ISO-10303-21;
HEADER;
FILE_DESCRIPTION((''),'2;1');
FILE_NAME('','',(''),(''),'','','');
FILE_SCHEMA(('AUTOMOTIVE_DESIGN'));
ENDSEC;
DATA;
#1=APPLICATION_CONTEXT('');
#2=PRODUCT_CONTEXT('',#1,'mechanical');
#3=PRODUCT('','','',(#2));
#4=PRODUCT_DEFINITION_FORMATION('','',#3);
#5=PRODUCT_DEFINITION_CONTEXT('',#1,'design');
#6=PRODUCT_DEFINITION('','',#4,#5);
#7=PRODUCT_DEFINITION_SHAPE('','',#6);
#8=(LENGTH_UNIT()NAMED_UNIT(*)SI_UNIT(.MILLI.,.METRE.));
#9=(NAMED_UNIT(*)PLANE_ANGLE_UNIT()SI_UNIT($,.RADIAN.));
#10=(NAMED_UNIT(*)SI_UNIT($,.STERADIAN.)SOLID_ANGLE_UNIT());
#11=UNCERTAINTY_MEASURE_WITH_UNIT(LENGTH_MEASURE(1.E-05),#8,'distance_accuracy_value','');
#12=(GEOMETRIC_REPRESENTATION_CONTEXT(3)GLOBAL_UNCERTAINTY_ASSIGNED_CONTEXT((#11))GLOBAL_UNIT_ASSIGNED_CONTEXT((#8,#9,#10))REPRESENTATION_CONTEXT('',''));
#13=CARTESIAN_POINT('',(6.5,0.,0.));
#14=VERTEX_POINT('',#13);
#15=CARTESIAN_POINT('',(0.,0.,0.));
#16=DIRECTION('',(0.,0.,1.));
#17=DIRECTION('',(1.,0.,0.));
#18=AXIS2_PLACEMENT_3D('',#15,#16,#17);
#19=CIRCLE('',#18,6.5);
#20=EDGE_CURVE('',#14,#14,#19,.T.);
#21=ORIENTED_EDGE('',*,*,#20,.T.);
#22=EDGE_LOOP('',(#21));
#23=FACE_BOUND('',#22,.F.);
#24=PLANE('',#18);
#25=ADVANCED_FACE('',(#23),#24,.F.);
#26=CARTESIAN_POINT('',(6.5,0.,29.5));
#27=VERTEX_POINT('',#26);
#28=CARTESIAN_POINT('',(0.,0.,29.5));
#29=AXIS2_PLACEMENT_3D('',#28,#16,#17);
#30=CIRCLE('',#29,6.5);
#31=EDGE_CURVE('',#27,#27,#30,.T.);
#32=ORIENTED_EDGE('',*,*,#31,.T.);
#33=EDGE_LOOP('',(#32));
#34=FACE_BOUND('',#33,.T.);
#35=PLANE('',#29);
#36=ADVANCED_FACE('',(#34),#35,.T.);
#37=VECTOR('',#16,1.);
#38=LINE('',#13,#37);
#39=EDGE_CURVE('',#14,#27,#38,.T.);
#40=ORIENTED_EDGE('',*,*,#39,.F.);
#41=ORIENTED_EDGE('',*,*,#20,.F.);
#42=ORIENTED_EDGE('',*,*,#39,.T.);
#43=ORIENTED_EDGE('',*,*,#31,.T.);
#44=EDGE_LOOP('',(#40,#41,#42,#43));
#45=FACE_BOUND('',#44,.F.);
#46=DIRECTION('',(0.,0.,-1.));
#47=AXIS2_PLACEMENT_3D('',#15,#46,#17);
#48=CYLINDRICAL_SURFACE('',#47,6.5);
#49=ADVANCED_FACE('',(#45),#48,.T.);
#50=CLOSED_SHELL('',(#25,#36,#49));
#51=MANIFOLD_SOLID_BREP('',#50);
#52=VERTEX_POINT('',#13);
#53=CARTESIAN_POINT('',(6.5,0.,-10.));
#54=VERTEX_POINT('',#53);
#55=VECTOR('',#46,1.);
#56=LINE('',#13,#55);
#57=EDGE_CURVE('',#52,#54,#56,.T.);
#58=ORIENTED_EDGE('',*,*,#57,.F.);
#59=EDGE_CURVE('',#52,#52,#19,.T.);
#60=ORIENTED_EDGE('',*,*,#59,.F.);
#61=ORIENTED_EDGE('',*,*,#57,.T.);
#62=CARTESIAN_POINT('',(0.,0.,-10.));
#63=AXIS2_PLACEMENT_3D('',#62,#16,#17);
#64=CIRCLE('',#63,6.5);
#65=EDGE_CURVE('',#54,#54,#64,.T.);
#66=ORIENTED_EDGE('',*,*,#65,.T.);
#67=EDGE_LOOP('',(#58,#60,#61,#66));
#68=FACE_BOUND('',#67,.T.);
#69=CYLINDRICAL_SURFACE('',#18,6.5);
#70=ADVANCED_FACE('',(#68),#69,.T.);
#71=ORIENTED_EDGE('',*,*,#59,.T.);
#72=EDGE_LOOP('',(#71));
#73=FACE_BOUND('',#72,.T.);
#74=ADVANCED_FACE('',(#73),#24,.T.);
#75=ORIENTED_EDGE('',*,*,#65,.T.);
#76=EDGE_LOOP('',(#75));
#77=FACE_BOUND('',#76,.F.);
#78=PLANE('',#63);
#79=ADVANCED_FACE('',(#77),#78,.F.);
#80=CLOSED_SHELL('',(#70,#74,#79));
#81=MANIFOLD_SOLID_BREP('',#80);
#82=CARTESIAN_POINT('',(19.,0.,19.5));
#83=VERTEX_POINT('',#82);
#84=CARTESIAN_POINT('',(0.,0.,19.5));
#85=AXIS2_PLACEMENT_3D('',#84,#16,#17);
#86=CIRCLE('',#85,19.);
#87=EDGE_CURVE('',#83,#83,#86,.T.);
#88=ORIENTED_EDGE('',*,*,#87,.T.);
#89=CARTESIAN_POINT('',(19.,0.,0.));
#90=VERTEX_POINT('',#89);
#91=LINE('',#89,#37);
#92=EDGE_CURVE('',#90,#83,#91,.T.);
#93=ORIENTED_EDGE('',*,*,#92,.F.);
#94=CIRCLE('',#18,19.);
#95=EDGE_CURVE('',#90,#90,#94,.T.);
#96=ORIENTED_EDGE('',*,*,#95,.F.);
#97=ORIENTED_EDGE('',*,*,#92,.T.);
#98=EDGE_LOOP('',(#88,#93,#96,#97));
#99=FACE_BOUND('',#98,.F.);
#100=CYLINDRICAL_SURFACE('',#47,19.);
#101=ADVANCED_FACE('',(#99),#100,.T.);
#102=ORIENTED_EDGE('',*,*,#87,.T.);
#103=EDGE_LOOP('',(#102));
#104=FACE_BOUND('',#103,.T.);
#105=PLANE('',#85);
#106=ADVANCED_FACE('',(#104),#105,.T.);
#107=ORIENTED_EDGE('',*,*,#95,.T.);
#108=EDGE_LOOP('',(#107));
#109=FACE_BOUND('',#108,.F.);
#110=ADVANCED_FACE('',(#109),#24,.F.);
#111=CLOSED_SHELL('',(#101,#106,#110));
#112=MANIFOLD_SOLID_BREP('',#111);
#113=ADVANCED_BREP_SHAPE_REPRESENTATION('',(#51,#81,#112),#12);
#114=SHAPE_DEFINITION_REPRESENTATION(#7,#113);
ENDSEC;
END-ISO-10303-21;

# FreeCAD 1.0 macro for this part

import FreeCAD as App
import Part
import Sketcher

V = App.Vector
Q = App.Units.Quantity

doc = App.newDocument("Part")
body = doc.addObject("PartDesign::Body", "Body")

# Sketch on XY plane
sketch1 = body.newObject("Sketcher::SketchObject", "Sketch")
sketch1.AttachmentSupport = (doc.getObject("XY_Plane"), [""])
sketch1.MapMode = "FlatFace"
sketch1.addGeometry(Part.Circle(V(0, 0, 0), V(0, 0, 1), 19), False)
sketch1.addConstraint(Sketcher.Constraint("Coincident", 0, 3, -1, 1))
sketch1.addConstraint(Sketcher.Constraint("Diameter", 0, Q("38 mm")))
pad1 = body.newObject("PartDesign::Pad", "Pad")
pad1.Profile = sketch1
pad1.Length = 19.5
body2 = doc.addObject("PartDesign::Body", "Body001")

# Sketch on XY plane
sketch2 = body2.newObject("Sketcher::SketchObject", "Sketch001")
sketch2.AttachmentSupport = (doc.getObject("XY_Plane001"), [""])
sketch2.MapMode = "FlatFace"
sketch2.addGeometry(Part.Circle(V(0, 0, 0), V(0, 0, 1), 6), False)
sketch2.addConstraint(Sketcher.Constraint("Coincident", 0, 3, -1, 1))
sketch2.addConstraint(Sketcher.Constraint("Diameter", 0, Q("13 mm")))
pad2 = body2.newObject("PartDesign::Pad", "Pad001")
pad2.Profile = sketch2
pad2.Length = 29.5
body3 = doc.addObject("PartDesign::Body", "Body002")

# Sketch on XY plane
sketch3 = body3.newObject("Sketcher::SketchObject", "Sketch002")
sketch3.AttachmentSupport = (doc.getObject("XY_Plane002"), [""])
sketch3.MapMode = "FlatFace"
sketch3.addGeometry(Part.Circle(V(0, 0, 0), V(0, 0, 1), 6), False)
sketch3.addConstraint(Sketcher.Constraint("Coincident", 0, 3, -1, 1))
sketch3.addConstraint(Sketcher.Constraint("Diameter", 0, Q("13 mm")))
pad3 = body3.newObject("PartDesign::Pad", "Pad002")
pad3.Profile = sketch3
pad3.Length = 10
pad3.Reversed = True

doc.recompute()
